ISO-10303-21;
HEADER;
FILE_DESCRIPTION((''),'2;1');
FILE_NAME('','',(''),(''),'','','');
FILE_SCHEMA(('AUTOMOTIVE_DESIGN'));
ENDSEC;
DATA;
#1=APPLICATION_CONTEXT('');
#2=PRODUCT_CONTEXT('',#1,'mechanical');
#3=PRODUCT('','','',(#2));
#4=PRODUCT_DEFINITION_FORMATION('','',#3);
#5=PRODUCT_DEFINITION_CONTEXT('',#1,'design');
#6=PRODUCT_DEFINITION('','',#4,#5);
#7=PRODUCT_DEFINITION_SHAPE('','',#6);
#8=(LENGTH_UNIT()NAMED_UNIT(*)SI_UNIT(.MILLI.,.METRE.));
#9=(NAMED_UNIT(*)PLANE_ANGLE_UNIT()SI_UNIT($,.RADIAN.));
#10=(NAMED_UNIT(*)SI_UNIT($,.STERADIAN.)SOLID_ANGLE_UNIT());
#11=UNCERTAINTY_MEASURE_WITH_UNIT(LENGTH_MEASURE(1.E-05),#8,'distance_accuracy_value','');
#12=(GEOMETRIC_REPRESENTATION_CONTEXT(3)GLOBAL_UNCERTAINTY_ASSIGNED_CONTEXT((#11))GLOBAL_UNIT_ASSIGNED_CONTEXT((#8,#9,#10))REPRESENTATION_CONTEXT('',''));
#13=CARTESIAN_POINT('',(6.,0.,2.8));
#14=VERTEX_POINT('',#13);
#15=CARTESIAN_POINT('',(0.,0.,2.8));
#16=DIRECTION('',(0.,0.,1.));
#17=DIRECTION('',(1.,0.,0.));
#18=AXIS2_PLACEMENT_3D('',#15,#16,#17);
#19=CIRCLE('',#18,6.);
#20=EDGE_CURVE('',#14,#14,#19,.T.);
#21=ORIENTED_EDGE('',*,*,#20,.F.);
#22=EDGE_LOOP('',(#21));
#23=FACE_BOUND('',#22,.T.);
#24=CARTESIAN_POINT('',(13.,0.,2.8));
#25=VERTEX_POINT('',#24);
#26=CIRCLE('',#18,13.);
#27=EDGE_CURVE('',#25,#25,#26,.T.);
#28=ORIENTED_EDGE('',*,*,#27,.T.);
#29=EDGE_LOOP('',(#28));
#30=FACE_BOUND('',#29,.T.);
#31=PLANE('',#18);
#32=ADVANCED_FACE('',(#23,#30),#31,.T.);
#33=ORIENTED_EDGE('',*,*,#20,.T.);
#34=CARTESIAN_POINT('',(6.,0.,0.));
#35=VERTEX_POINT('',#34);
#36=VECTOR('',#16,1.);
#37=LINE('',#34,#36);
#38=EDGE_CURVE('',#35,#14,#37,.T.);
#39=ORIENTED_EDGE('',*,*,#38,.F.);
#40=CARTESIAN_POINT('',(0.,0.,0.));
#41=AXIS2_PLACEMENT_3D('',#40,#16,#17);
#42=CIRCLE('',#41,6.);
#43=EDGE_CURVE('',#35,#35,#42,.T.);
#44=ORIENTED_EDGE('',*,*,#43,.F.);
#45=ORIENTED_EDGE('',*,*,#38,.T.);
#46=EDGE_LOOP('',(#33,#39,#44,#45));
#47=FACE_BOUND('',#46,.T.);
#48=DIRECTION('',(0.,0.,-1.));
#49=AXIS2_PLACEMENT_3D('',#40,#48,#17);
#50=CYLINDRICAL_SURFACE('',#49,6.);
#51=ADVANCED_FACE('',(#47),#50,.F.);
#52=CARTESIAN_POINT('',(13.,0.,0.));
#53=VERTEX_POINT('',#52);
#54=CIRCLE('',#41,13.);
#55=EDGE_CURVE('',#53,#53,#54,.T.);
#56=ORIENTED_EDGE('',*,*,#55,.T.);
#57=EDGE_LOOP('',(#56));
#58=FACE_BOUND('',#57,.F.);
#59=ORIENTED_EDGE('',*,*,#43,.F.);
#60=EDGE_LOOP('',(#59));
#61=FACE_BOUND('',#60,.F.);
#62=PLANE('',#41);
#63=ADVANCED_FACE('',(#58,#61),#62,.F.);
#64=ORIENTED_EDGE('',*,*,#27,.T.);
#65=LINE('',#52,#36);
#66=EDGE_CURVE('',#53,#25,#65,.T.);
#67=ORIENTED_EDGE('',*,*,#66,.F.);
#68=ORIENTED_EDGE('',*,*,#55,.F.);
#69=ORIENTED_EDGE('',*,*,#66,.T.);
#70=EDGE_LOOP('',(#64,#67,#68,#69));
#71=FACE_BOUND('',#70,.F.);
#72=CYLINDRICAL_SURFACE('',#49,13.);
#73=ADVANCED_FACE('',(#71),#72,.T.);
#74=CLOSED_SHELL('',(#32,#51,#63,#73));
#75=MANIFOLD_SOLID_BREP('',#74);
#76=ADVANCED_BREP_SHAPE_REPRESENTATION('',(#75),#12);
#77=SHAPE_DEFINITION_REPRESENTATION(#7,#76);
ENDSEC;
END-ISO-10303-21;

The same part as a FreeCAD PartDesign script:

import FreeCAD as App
import Part
import Sketcher

doc = App.newDocument("Part")
params = doc.addObject("Spreadsheet::Sheet", "Params")
for row, (alias, value) in enumerate([
    ("sketch1_diameter", "26 mm"),
    ("sketch1_diameter2", "12 mm"),
    ("pad1_length", "2.8 mm"),
], start=1):
    params.set(f"A{row}", alias)
    params.set(f"B{row}", "=" + value)
    params.setAlias(f"B{row}", alias)

body = doc.addObject("PartDesign::Body", "Body")

# Sketch on XY plane
sketch1 = body.newObject("Sketcher::SketchObject", "Sketch")
sketch1.AttachmentSupport = (doc.getObject("XY_Plane"), [""])
sketch1.MapMode = "FlatFace"
sketch1.addGeometry(Part.Circle(App.Vector(0, 0, 0), App.Vector(0, 0, 1), 13), False)
sketch1.addGeometry(Part.Circle(App.Vector(0, 0, 0), App.Vector(0, 0, 1), 6), False)
sketch1.addConstraint(Sketcher.Constraint("Coincident", 0, 3, -1, 1))
sketch1.addConstraint(Sketcher.Constraint("Coincident", 1, 3, -1, 1))
sketch1.addConstraint(Sketcher.Constraint("Diameter", 0, 26.0))
sketch1.addConstraint(Sketcher.Constraint("Diameter", 1, 12.0))
sketch1.setExpression("Constraints[2]", "Params.sketch1_diameter")
sketch1.setExpression("Constraints[3]", "Params.sketch1_diameter2")
pad1 = body.newObject("PartDesign::Pad", "Pad")
pad1.Profile = sketch1
pad1.setExpression("Length", "Params.pad1_length")

doc.recompute()
